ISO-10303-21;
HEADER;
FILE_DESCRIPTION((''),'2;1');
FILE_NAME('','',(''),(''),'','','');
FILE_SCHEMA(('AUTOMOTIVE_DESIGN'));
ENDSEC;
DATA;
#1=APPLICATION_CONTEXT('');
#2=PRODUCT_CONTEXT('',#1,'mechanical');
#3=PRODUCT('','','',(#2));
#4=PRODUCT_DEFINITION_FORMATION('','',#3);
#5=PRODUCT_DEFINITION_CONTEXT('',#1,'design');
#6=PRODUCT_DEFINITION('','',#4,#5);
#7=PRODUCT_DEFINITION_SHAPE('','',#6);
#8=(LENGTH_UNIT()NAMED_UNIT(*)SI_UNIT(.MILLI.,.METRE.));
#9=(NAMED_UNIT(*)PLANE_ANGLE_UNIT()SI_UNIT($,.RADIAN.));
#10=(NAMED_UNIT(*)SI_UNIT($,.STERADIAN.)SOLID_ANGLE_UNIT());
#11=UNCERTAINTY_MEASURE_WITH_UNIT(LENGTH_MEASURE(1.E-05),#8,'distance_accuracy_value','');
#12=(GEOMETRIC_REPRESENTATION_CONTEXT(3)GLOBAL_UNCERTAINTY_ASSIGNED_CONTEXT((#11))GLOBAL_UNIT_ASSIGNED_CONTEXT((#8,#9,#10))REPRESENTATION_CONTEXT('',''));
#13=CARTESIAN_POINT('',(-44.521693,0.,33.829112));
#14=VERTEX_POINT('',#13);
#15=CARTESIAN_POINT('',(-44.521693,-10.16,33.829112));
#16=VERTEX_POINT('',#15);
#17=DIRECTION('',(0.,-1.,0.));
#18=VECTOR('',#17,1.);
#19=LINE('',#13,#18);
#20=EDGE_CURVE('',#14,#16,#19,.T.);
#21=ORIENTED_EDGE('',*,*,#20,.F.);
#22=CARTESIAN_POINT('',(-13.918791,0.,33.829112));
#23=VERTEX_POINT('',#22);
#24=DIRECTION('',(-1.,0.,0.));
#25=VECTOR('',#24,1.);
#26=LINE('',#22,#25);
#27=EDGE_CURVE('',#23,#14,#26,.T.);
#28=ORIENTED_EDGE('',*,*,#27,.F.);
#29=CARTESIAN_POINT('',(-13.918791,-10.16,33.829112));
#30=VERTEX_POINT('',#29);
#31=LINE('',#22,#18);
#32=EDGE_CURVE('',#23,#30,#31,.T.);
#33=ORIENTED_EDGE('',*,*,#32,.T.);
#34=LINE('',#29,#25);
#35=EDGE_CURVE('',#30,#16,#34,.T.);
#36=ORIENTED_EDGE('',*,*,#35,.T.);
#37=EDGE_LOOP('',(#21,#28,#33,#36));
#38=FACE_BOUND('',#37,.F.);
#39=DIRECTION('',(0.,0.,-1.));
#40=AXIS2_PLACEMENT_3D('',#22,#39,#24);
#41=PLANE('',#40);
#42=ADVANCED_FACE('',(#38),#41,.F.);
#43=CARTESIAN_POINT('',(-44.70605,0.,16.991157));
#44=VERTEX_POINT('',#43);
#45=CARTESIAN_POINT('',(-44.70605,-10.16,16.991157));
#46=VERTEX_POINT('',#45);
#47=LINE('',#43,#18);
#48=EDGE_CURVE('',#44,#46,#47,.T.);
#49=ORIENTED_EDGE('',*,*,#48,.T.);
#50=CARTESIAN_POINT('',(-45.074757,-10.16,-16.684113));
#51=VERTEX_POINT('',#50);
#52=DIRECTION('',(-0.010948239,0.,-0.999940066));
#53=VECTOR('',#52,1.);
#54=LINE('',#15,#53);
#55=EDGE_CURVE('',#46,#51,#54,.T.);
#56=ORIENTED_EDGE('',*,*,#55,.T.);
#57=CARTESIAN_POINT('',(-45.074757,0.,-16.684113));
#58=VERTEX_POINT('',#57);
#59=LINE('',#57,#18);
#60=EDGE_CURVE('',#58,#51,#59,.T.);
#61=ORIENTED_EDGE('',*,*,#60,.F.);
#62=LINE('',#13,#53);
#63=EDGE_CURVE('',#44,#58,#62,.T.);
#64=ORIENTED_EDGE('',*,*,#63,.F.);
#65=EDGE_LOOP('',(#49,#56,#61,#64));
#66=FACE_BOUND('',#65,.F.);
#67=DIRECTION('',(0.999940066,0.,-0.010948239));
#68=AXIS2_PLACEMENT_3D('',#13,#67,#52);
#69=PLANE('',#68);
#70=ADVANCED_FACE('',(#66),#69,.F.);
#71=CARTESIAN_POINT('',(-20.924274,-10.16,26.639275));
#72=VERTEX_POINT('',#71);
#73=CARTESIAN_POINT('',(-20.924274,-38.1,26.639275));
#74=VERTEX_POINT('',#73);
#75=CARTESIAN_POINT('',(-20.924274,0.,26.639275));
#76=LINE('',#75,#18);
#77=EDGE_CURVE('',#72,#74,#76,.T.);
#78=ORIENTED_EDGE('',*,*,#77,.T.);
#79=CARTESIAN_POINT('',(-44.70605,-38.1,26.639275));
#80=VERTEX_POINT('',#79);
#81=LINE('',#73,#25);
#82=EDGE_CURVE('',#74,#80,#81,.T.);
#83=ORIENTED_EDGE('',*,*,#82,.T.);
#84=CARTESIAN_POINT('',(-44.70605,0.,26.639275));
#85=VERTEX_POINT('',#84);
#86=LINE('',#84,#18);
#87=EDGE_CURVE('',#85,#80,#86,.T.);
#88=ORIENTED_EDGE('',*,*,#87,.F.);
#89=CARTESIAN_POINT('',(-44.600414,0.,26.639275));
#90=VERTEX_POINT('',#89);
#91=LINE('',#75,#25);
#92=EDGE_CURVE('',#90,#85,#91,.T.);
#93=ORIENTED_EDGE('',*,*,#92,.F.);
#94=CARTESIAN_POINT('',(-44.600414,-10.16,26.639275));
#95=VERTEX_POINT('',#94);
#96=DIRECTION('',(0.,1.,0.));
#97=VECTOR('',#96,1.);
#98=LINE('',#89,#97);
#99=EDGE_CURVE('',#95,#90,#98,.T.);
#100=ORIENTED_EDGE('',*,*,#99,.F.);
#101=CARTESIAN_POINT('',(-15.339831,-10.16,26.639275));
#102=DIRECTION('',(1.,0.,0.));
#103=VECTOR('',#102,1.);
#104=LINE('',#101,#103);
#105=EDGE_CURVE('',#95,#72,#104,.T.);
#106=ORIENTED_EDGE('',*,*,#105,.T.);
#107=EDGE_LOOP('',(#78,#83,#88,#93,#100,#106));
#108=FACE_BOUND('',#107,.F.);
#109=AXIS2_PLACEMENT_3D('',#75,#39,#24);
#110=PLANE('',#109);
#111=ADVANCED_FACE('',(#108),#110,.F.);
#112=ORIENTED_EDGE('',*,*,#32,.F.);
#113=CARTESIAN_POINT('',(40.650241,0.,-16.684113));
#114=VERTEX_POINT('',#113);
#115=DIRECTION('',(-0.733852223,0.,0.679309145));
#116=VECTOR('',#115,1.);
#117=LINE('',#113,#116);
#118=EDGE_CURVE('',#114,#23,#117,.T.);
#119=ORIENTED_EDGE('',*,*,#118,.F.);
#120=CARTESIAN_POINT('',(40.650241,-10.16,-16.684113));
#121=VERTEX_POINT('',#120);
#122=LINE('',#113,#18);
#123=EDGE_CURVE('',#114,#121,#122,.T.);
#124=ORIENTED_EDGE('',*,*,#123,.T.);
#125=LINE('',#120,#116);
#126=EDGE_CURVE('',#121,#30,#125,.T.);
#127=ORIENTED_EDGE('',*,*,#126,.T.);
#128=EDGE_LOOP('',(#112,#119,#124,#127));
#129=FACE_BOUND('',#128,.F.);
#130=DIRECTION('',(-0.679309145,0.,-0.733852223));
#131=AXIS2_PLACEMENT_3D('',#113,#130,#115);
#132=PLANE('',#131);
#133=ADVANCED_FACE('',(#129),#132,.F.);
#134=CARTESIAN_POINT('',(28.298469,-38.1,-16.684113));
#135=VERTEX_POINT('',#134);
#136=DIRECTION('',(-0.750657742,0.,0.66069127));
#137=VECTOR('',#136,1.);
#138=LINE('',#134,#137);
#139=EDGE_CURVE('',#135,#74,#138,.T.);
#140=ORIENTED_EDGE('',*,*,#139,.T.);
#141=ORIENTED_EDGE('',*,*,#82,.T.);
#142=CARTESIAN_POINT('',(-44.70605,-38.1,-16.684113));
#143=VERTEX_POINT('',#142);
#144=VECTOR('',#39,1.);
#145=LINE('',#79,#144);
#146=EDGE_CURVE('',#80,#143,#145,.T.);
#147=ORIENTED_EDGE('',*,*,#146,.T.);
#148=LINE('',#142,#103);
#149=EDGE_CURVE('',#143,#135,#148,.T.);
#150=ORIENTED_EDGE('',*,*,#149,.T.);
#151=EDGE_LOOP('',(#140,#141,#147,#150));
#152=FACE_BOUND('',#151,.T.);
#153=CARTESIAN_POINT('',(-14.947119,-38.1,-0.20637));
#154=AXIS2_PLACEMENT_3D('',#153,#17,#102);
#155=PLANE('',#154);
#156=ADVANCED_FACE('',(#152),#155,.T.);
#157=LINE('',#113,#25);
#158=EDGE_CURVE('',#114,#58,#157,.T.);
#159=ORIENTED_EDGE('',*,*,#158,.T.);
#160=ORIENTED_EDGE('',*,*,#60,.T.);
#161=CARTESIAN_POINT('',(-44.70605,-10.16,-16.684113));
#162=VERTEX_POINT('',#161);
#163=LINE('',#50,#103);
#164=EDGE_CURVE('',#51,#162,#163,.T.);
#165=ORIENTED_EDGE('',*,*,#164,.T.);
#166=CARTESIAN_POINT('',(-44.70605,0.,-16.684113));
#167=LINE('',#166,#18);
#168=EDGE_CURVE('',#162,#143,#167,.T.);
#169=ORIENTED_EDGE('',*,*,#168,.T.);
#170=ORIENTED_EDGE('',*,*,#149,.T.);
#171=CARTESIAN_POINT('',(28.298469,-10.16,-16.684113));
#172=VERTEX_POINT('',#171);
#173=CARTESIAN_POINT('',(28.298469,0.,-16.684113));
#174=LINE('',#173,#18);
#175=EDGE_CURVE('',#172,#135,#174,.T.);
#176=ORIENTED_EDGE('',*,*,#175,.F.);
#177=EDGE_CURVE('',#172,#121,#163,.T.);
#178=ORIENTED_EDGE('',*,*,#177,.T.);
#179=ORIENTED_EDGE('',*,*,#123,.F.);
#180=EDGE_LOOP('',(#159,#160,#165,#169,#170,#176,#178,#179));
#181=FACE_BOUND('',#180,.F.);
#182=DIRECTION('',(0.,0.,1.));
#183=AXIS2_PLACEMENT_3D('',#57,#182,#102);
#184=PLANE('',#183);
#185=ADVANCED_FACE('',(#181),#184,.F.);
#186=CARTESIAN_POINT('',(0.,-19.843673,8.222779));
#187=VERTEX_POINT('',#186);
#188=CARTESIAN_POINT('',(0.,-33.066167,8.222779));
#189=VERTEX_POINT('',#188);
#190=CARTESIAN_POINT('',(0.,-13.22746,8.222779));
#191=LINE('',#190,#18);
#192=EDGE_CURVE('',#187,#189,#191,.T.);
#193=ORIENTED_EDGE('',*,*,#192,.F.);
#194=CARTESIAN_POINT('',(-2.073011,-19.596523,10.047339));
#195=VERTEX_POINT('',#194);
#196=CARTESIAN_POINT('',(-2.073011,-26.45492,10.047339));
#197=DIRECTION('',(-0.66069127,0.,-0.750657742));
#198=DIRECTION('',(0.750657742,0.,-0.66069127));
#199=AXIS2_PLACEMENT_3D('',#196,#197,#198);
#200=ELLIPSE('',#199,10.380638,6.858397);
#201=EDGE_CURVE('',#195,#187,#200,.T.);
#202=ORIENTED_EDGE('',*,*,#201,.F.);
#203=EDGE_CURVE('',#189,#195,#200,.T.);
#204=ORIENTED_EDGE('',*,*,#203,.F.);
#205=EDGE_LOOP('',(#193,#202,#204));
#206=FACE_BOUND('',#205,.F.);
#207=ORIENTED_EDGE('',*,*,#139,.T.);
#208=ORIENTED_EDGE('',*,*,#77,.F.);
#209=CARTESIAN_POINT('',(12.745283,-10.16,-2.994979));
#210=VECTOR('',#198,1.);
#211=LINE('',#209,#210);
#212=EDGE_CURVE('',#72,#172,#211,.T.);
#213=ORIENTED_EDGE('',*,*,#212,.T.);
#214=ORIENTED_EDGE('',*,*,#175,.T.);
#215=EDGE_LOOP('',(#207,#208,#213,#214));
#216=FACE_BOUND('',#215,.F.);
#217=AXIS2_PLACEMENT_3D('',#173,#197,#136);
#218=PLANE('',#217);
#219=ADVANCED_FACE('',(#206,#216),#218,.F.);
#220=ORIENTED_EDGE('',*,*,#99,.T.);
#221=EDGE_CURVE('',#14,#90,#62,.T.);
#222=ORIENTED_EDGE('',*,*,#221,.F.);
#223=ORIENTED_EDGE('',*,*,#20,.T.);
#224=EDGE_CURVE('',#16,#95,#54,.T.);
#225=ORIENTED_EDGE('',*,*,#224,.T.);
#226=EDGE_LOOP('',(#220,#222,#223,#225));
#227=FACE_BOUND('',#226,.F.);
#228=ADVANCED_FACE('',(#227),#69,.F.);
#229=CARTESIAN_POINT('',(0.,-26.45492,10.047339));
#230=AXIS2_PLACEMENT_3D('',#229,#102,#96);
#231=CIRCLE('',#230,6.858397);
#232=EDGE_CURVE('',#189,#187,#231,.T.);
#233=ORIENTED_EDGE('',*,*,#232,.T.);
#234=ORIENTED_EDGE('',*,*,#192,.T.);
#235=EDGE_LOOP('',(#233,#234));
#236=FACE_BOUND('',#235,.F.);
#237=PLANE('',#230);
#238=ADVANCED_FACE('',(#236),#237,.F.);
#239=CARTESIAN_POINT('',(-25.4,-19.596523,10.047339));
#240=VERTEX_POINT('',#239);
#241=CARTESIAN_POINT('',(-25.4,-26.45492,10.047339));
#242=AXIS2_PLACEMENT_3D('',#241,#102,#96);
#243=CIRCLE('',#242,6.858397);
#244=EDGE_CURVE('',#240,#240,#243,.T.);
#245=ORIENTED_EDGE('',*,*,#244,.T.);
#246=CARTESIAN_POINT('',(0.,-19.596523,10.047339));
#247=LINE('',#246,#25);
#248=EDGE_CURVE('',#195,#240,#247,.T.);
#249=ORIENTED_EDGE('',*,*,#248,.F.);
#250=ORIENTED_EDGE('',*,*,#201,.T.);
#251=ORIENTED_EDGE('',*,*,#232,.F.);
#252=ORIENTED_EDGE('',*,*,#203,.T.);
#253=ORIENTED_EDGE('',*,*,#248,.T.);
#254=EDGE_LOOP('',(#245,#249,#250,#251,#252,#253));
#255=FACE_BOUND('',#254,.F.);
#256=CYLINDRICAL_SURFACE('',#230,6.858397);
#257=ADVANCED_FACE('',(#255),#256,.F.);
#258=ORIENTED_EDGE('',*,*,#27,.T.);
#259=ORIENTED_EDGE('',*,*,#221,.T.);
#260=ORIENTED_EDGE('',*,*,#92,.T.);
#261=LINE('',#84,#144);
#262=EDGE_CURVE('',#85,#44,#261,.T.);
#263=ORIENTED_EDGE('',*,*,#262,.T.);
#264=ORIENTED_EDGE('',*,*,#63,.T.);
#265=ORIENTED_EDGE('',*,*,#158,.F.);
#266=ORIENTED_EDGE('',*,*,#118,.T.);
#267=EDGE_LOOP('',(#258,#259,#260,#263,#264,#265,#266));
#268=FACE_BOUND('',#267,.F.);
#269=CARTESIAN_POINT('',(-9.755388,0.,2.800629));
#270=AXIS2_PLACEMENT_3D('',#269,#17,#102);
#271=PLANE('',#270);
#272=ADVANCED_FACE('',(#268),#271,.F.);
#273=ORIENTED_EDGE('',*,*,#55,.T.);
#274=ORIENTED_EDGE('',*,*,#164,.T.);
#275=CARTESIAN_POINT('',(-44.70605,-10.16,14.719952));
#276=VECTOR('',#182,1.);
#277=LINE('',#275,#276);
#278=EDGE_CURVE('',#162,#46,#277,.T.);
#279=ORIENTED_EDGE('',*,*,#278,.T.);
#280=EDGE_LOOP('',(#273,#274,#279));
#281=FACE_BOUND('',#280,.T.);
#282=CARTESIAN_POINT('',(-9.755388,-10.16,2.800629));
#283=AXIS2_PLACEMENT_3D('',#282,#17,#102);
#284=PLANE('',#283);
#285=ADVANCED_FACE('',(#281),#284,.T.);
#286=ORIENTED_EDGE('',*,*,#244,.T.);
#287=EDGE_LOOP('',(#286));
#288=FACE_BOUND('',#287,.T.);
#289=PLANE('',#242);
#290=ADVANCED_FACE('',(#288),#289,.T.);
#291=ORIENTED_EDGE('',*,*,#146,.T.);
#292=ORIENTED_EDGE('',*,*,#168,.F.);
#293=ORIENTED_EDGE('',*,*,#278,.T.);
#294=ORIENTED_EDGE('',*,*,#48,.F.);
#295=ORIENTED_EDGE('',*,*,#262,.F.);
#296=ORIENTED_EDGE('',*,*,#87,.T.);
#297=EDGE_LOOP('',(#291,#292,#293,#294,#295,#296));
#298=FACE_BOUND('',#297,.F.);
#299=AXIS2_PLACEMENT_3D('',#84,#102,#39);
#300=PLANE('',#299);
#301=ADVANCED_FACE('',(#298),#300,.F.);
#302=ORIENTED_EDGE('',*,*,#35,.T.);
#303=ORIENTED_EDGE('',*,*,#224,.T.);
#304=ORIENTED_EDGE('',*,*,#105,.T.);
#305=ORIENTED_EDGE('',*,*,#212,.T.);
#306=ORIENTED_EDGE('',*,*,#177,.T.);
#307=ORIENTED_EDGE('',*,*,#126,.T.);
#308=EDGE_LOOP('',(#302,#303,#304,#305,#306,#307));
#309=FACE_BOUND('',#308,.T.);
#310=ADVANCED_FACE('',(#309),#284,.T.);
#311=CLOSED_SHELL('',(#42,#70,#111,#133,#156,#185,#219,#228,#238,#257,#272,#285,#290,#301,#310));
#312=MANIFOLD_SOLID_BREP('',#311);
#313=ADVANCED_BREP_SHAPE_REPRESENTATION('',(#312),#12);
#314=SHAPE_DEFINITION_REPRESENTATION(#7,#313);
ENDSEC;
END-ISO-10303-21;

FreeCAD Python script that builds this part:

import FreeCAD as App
import Part
import Sketcher

V = App.Vector
Q = App.Units.Quantity

doc = App.newDocument("Part")
body = doc.addObject("PartDesign::Body", "Body")

sketch1 = body.newObject("Sketcher::SketchObject", "Sketch")
sketch1.AttachmentSupport = (doc.getObject("XZ_Plane"), [""])
sketch1.MapMode = "FlatFace"
sketch1.addGeometry(Part.LineSegment(V(-14, 34, 0), V(-45, 34, 0)), False)
sketch1.addGeometry(Part.LineSegment(V(-45, 34, 0), V(-45, -17, 0)), False)
sketch1.addGeometry(Part.LineSegment(V(-45, -17, 0), V(41, -17, 0)), False)
sketch1.addGeometry(Part.LineSegment(V(41, -17, 0), V(-14, 34, 0)), False)
sketch1.addConstraint(Sketcher.Constraint("Coincident", 0, 2, 1, 1))
sketch1.addConstraint(Sketcher.Constraint("Coincident", 1, 2, 2, 1))
sketch1.addConstraint(Sketcher.Constraint("Coincident", 2, 2, 3, 1))
sketch1.addConstraint(Sketcher.Constraint("Coincident", 3, 2, 0, 1))
sketch1.addConstraint(Sketcher.Constraint("Horizontal", 0))
sketch1.addConstraint(Sketcher.Constraint("Horizontal", 2))
sketch1.addConstraint(Sketcher.Constraint("DistanceX", 2, 1, 2, 2, Q("3.3749999 in")))
sketch1.addConstraint(Sketcher.Constraint("DistanceX", 0, 2, 0, 1, 30.602902))
sketch1.addConstraint(Sketcher.Constraint("Distance", 3, 74.359701))
sketch1.addConstraint(Sketcher.Constraint("DistanceX", -1, 1, 2, 2, 40.650241))
sketch1.addConstraint(Sketcher.Constraint("DistanceX", 3, 2, -1, 1, 13.918791))
sketch1.addConstraint(Sketcher.Constraint("DistanceY", -1, 1, 0, 2, 33.829112))
pad1 = body.newObject("PartDesign::Pad", "Pad")
pad1.Profile = sketch1
pad1.Length = Q("0.4 in")

sketch2 = body.newObject("Sketcher::SketchObject", "Sketch001")
sketch2.AttachmentSupport = (doc.getObject("XZ_Plane"), [""])
sketch2.MapMode = "FlatFace"
sketch2.addGeometry(Part.LineSegment(V(-21, 27, 0), V(-45, 27, 0)), False)
sketch2.addGeometry(Part.LineSegment(V(-45, 27, 0), V(-45, -17, 0)), False)
sketch2.addGeometry(Part.LineSegment(V(-45, -17, 0), V(28, -17, 0)), False)
sketch2.addGeometry(Part.LineSegment(V(28, -17, 0), V(-21, 27, 0)), False)
sketch2.addConstraint(Sketcher.Constraint("Coincident", 0, 2, 1, 1))
sketch2.addConstraint(Sketcher.Constraint("Coincident", 1, 2, 2, 1))
sketch2.addConstraint(Sketcher.Constraint("Coincident", 2, 2, 3, 1))
sketch2.addConstraint(Sketcher.Constraint("Coincident", 3, 2, 0, 1))
sketch2.addConstraint(Sketcher.Constraint("Horizontal", 0))
sketch2.addConstraint(Sketcher.Constraint("Vertical", 1))
sketch2.addConstraint(Sketcher.Constraint("Horizontal", 2))
sketch2.addConstraint(Sketcher.Constraint("DistanceX", 2, 1, 2, 2, 73.004519))
sketch2.addConstraint(Sketcher.Constraint("DistanceX", 0, 2, 0, 1, 23.781776))
sketch2.addConstraint(Sketcher.Constraint("DistanceY", 1, 2, 1, 1, 43.323388))
sketch2.addConstraint(Sketcher.Constraint("DistanceX", 0, 2, -1, 1, 44.70605))
sketch2.addConstraint(Sketcher.Constraint("DistanceY", -1, 1, 0, 2, 26.639275))
pad2 = body.newObject("PartDesign::Pad", "Pad001")
pad2.Profile = sketch2
pad2.Length = Q("1.5 in")

sketch3 = body.newObject("Sketcher::SketchObject", "Sketch002")
sketch3.AttachmentSupport = (doc.getObject("YZ_Plane"), [""])
sketch3.MapMode = "FlatFace"
sketch3.addGeometry(Part.Circle(V(-26, 10, 0), V(0, 0, 1), 7), False)
sketch3.addConstraint(Sketcher.Constraint("Diameter", 0, 13.716794))
sketch3.addConstraint(Sketcher.Constraint("DistanceX", 0, 3, -1, 1, 26.45492))
sketch3.addConstraint(Sketcher.Constraint("DistanceY", -1, 1, 0, 3, 10.047339))
pocket1 = body.newObject("PartDesign::Pocket", "Pocket")
pocket1.Profile = sketch3
pocket1.Length = Q("1 in")

doc.recompute()
